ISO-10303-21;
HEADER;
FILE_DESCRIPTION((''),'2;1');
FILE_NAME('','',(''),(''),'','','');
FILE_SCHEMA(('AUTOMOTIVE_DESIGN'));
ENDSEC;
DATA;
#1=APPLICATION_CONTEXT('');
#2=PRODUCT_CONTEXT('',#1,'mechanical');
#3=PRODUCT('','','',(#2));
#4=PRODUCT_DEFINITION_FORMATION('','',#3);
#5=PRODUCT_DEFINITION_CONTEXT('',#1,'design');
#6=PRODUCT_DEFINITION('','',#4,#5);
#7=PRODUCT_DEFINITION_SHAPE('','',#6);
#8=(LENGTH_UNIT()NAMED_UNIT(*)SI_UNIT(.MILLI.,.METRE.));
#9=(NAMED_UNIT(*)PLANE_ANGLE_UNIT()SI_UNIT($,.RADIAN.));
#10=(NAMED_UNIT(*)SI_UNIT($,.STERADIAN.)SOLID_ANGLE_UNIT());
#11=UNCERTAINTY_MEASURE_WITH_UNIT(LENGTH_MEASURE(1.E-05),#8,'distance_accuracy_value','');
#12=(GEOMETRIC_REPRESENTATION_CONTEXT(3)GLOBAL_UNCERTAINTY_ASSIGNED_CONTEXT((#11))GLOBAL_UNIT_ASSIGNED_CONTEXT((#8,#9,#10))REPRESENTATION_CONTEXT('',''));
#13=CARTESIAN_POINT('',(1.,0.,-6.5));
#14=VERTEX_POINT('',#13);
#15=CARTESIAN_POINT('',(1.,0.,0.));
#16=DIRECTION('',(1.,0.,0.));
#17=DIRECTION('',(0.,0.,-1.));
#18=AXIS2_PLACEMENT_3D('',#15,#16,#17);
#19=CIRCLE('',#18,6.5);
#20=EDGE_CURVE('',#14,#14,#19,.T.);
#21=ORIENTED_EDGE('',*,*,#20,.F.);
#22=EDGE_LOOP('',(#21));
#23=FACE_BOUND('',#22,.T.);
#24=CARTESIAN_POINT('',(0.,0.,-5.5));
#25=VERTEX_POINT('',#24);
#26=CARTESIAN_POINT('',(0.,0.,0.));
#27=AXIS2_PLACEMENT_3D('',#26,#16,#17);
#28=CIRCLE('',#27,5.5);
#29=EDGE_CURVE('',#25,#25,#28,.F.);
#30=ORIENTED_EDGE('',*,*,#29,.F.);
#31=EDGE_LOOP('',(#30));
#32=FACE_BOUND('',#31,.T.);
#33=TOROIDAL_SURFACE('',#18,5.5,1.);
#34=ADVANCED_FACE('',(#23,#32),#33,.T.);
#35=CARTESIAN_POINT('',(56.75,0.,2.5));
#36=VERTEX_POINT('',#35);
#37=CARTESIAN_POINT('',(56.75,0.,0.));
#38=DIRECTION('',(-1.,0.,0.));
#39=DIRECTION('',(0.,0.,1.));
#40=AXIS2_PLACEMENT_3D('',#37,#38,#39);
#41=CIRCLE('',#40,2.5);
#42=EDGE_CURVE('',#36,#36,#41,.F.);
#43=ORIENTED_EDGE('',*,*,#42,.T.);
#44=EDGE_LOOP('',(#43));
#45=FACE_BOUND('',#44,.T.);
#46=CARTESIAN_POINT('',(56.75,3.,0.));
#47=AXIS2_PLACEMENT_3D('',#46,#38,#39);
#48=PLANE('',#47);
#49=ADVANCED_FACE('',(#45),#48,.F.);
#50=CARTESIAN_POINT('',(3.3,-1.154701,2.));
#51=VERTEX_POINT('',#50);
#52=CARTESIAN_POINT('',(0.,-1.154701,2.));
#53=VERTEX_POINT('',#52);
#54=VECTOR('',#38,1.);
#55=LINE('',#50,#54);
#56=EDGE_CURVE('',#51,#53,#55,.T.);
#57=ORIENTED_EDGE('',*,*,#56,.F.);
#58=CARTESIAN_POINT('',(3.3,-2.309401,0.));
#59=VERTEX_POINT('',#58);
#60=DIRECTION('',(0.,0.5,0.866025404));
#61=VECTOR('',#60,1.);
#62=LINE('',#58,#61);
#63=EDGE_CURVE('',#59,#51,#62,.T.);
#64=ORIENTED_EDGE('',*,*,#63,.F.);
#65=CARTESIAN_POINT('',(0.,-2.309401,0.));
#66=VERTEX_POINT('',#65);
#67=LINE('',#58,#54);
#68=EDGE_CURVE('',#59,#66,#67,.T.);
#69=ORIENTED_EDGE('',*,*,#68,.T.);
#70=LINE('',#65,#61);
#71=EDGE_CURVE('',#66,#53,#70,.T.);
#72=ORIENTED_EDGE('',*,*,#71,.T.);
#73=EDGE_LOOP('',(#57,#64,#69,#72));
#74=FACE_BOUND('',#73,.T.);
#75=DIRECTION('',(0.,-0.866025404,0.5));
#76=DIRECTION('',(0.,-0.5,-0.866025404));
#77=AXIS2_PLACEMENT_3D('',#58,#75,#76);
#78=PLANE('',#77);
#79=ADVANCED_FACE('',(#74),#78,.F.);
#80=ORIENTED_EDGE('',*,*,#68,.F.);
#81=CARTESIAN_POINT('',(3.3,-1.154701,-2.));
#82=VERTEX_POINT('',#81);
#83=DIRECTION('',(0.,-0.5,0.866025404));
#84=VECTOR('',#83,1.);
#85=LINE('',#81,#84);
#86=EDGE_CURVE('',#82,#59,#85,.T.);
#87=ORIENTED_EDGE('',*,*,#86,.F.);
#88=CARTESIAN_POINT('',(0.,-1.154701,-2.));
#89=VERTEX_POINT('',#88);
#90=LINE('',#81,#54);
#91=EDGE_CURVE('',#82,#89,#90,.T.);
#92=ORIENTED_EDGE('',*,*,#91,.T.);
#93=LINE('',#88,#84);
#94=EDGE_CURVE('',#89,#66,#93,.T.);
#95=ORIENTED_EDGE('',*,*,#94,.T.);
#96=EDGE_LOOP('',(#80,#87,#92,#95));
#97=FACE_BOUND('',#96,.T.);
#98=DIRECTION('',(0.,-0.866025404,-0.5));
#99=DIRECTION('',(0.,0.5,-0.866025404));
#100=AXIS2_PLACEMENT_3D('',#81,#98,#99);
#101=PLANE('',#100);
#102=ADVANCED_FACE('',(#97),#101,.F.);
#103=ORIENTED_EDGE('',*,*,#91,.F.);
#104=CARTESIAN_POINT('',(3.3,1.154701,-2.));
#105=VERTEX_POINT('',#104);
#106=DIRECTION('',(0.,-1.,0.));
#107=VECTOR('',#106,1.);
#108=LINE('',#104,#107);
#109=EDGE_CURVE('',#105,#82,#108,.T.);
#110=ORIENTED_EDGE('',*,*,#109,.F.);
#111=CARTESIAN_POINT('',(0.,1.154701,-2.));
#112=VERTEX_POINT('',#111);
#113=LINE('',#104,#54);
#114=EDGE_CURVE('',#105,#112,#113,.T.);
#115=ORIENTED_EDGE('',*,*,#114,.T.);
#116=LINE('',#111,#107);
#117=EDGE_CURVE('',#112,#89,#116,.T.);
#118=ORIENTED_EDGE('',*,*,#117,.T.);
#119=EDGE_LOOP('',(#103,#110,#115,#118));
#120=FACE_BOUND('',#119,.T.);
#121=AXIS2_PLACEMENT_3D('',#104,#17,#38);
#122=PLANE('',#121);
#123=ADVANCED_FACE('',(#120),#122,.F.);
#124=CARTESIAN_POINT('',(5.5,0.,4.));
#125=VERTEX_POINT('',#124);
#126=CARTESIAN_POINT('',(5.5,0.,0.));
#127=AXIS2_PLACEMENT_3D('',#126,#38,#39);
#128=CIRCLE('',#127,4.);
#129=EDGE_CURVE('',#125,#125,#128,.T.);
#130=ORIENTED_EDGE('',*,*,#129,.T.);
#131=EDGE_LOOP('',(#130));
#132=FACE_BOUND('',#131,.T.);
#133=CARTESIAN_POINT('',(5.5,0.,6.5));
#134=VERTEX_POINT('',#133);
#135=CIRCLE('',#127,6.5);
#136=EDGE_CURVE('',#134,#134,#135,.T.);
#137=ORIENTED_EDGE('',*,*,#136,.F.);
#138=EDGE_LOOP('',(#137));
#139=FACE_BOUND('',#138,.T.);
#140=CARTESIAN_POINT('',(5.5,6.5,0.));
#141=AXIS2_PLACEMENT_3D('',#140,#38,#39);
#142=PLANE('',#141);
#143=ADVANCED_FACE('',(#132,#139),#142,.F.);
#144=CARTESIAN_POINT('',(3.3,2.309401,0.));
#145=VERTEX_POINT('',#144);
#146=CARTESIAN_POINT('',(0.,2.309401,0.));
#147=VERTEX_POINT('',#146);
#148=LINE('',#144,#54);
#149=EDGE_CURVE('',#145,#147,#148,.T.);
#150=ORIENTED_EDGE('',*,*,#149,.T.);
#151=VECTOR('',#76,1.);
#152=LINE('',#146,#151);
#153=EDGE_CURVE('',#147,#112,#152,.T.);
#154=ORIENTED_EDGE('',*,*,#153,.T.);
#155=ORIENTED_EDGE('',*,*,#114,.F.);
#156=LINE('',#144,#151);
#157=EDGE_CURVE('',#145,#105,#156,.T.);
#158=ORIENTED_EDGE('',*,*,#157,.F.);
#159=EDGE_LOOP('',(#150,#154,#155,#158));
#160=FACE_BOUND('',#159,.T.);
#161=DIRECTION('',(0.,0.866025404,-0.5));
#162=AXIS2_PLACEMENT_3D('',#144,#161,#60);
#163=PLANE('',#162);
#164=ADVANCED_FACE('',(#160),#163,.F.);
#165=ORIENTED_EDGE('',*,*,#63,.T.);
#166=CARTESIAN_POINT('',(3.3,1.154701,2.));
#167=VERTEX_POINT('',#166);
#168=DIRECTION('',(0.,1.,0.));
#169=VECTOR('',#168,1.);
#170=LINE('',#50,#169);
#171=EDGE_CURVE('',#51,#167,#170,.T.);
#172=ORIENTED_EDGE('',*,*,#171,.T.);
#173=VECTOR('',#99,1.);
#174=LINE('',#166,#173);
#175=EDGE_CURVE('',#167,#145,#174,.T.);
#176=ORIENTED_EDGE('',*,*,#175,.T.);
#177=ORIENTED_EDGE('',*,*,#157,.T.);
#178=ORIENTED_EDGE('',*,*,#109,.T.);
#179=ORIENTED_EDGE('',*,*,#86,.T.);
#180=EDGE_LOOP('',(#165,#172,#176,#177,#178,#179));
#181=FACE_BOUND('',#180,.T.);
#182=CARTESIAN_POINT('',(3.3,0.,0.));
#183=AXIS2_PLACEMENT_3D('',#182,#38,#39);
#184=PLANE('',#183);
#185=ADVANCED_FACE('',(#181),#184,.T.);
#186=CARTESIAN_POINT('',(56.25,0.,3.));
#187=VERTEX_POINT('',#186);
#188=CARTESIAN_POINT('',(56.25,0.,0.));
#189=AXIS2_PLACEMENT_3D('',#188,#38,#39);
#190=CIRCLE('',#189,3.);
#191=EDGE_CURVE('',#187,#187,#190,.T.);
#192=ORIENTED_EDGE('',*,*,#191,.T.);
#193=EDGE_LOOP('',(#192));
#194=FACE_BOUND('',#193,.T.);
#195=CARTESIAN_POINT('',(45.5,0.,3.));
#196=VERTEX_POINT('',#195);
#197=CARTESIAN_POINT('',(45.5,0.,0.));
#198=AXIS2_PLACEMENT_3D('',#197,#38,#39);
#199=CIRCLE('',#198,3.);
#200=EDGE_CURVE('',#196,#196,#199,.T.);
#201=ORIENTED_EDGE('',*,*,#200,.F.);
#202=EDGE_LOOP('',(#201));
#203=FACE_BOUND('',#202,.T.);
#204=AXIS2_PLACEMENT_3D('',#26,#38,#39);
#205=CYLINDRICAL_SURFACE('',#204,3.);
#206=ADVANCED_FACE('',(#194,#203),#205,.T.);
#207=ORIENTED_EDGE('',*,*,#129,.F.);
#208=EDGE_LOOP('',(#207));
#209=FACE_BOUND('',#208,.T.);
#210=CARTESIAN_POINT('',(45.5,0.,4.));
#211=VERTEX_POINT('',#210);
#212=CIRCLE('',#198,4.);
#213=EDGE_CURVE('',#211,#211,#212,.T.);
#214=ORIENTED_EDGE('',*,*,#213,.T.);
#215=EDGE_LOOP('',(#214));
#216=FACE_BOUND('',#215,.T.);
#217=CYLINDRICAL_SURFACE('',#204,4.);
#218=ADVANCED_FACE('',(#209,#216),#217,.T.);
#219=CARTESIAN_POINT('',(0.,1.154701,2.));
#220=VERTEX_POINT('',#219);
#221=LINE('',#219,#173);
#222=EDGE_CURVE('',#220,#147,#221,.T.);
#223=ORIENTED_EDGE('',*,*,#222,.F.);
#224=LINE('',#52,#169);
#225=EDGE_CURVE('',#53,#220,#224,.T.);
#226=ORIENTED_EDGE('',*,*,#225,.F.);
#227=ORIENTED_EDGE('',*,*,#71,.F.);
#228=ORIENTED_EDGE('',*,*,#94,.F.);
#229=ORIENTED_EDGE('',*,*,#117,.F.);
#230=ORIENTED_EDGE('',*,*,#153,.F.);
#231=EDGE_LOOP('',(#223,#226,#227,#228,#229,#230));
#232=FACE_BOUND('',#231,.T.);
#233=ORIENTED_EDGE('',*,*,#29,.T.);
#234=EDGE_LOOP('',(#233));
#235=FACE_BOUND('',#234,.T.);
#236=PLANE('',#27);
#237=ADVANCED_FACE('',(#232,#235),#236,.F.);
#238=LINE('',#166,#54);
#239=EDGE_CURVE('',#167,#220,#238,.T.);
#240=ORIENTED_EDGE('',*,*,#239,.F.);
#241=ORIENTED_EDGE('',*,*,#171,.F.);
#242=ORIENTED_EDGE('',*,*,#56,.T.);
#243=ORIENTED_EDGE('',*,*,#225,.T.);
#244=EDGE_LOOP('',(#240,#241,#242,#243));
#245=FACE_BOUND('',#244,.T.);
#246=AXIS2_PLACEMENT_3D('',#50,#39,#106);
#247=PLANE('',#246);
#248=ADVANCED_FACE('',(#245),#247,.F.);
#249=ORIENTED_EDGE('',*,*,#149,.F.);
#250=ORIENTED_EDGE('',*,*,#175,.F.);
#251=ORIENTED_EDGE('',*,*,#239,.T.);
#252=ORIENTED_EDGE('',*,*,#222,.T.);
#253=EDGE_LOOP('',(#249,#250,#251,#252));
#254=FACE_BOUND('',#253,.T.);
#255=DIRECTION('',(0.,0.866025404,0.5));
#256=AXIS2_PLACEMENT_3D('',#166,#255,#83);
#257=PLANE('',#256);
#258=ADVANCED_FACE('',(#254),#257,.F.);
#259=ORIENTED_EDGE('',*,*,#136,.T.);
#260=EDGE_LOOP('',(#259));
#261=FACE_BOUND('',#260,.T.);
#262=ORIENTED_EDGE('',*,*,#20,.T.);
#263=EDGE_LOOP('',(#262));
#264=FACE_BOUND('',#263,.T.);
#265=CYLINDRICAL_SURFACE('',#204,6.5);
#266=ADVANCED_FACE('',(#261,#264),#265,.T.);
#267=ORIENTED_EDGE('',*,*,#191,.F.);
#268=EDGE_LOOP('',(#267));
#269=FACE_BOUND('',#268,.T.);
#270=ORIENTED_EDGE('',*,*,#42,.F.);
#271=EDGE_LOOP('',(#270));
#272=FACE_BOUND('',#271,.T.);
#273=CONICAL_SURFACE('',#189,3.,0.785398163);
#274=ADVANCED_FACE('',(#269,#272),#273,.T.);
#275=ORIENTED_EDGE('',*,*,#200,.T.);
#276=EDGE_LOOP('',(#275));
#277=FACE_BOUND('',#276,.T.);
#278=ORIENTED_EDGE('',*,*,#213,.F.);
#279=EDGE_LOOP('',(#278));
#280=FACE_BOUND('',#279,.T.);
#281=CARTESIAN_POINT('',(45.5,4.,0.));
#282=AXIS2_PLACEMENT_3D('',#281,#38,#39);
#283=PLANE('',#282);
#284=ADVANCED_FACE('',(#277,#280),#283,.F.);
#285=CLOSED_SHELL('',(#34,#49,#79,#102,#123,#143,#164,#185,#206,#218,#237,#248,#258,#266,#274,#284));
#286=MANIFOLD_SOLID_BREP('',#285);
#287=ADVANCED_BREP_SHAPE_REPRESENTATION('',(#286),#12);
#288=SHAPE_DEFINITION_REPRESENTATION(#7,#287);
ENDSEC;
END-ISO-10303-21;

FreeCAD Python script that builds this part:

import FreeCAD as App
import Part
import Sketcher
Q = App.Units.Quantity


def edges_at(feature, points):
    """Names of the edges that pass closest to the given points."""
    edges = feature.Shape.Edges
    near = lambda p: min(range(len(edges)), key=lambda i: edges[i].distToShape(Part.Vertex(*p))[0])
    return sorted({f"Edge{near(p) + 1}" for p in points})

doc = App.newDocument("Part")
body = doc.addObject("PartDesign::Body", "Body")

# Sketch on XY plane
sketch1 = body.newObject("Sketcher::SketchObject", "Sketch")
sketch1.AttachmentSupport = (doc.getObject("XY_Plane"), [""])
sketch1.MapMode = "FlatFace"
sketch1.addGeometry([
    Part.LineSegment(App.Vector(0, 6.5, 0), App.Vector(0, 0, 0)),  # 0
    Part.LineSegment(App.Vector(0, 0, 0), App.Vector(56.8, 0, 0)),  # 1
    Part.LineSegment(App.Vector(56.8, 0, 0), App.Vector(56.8, 3, 0)),  # 2
    Part.LineSegment(App.Vector(56.8, 3, 0), App.Vector(45.5, 3, 0)),  # 3
    Part.LineSegment(App.Vector(45.5, 3, 0), App.Vector(45.5, 4, 0)),  # 4
    Part.LineSegment(App.Vector(45.5, 4, 0), App.Vector(5.5, 4, 0)),  # 5
    Part.LineSegment(App.Vector(5.5, 4, 0), App.Vector(5.5, 6.5, 0)),  # 6
    Part.LineSegment(App.Vector(5.5, 6.5, 0), App.Vector(0, 6.5, 0)),  # 7
], False)
sketch1.addConstraint([
    Sketcher.Constraint("Coincident", 0, 2, 1, 1),
    Sketcher.Constraint("Coincident", 1, 2, 2, 1),
    Sketcher.Constraint("Coincident", 2, 2, 3, 1),
    Sketcher.Constraint("Coincident", 3, 2, 4, 1),
    Sketcher.Constraint("Coincident", 4, 2, 5, 1),
    Sketcher.Constraint("Coincident", 5, 2, 6, 1),
    Sketcher.Constraint("Coincident", 6, 2, 7, 1),
    Sketcher.Constraint("Coincident", 7, 2, 0, 1),
    Sketcher.Constraint("Vertical", 0),
    Sketcher.Constraint("Horizontal", 1),
    Sketcher.Constraint("Vertical", 2),
    Sketcher.Constraint("Horizontal", 3),
    Sketcher.Constraint("Vertical", 4),
    Sketcher.Constraint("Horizontal", 5),
    Sketcher.Constraint("Vertical", 6),
    Sketcher.Constraint("Horizontal", 7),
    Sketcher.Constraint("Coincident", 0, 2, -1, 1),
    Sketcher.Constraint("DistanceX", 5, 2, 5, 1, 40.0),
    Sketcher.Constraint("DistanceY", 2, 1, 2, 2, 3.0),
    Sketcher.Constraint("DistanceY", 4, 1, 4, 2, 1.0),
    Sketcher.Constraint("DistanceX", 7, 2, 7, 1, 5.5),
    Sketcher.Constraint("DistanceY", 0, 2, 0, 1, 6.5),
    Sketcher.Constraint("DistanceX", 1, 1, 1, 2, 56.75),
])
revolution = body.newObject("PartDesign::Revolution", "Revolution")
revolution.Profile = sketch1
revolution.ReferenceAxis = (sketch1, ["H_Axis"])
revolution.Angle = 360

# Sketch on YZ plane
sketch2 = body.newObject("Sketcher::SketchObject", "Sketch001")
sketch2.AttachmentSupport = (doc.getObject("YZ_Plane"), [""])
sketch2.MapMode = "FlatFace"
sketch2.addGeometry([
    Part.LineSegment(App.Vector(2.3, 0, 0), App.Vector(1.2, -2, 0)),  # 0
    Part.LineSegment(App.Vector(1.2, -2, 0), App.Vector(-1.2, -2, 0)),  # 1
    Part.LineSegment(App.Vector(-1.2, -2, 0), App.Vector(-2.3, 0, 0)),  # 2
    Part.LineSegment(App.Vector(-2.3, 0, 0), App.Vector(-1.2, 2, 0)),  # 3
    Part.LineSegment(App.Vector(-1.2, 2, 0), App.Vector(1.2, 2, 0)),  # 4
    Part.LineSegment(App.Vector(1.2, 2, 0), App.Vector(2.3, 0, 0)),  # 5
], False)
sketch2.addConstraint([
    Sketcher.Constraint("Coincident", 0, 2, 1, 1),
    Sketcher.Constraint("Coincident", 1, 2, 2, 1),
    Sketcher.Constraint("Coincident", 2, 2, 3, 1),
    Sketcher.Constraint("Coincident", 3, 2, 4, 1),
    Sketcher.Constraint("Coincident", 4, 2, 5, 1),
    Sketcher.Constraint("Coincident", 5, 2, 0, 1),
    Sketcher.Constraint("Horizontal", 1),
    Sketcher.Constraint("Horizontal", 4),
    Sketcher.Constraint("Symmetric", 0, 2, 3, 2, -1, 1),
    Sketcher.Constraint("Symmetric", 2, 2, 5, 2, -1, 1),
    Sketcher.Constraint("PointOnObject", 2, 2, -1),
    Sketcher.Constraint("Parallel", 2, 5),
    Sketcher.Constraint("Vertical", 1, 2, 3, 2),
    Sketcher.Constraint("Angle", 0, Q("-120 deg")),
    Sketcher.Constraint("DistanceY", 0, 2, -1, 1, 2.0),
    Sketcher.Constraint("DistanceX", 1, 2, 1, 1, 2.309401),
])
pocket1 = body.newObject("PartDesign::Pocket", "Pocket")
pocket1.Profile = sketch2
pocket1.Length = 3.3
pocket1.Reversed = True
doc.recompute()

fillet = body.newObject("PartDesign::Fillet", "Fillet")
fillet.Base = (pocket1, edges_at(pocket1, [(0, -6.5, 0)]))
fillet.Radius = 1
doc.recompute()

chamfer = body.newObject("PartDesign::Chamfer", "Chamfer")
chamfer.Base = (fillet, edges_at(fillet, [(56.75, -3, 0)]))
chamfer.Size = 0.5

doc.recompute()
